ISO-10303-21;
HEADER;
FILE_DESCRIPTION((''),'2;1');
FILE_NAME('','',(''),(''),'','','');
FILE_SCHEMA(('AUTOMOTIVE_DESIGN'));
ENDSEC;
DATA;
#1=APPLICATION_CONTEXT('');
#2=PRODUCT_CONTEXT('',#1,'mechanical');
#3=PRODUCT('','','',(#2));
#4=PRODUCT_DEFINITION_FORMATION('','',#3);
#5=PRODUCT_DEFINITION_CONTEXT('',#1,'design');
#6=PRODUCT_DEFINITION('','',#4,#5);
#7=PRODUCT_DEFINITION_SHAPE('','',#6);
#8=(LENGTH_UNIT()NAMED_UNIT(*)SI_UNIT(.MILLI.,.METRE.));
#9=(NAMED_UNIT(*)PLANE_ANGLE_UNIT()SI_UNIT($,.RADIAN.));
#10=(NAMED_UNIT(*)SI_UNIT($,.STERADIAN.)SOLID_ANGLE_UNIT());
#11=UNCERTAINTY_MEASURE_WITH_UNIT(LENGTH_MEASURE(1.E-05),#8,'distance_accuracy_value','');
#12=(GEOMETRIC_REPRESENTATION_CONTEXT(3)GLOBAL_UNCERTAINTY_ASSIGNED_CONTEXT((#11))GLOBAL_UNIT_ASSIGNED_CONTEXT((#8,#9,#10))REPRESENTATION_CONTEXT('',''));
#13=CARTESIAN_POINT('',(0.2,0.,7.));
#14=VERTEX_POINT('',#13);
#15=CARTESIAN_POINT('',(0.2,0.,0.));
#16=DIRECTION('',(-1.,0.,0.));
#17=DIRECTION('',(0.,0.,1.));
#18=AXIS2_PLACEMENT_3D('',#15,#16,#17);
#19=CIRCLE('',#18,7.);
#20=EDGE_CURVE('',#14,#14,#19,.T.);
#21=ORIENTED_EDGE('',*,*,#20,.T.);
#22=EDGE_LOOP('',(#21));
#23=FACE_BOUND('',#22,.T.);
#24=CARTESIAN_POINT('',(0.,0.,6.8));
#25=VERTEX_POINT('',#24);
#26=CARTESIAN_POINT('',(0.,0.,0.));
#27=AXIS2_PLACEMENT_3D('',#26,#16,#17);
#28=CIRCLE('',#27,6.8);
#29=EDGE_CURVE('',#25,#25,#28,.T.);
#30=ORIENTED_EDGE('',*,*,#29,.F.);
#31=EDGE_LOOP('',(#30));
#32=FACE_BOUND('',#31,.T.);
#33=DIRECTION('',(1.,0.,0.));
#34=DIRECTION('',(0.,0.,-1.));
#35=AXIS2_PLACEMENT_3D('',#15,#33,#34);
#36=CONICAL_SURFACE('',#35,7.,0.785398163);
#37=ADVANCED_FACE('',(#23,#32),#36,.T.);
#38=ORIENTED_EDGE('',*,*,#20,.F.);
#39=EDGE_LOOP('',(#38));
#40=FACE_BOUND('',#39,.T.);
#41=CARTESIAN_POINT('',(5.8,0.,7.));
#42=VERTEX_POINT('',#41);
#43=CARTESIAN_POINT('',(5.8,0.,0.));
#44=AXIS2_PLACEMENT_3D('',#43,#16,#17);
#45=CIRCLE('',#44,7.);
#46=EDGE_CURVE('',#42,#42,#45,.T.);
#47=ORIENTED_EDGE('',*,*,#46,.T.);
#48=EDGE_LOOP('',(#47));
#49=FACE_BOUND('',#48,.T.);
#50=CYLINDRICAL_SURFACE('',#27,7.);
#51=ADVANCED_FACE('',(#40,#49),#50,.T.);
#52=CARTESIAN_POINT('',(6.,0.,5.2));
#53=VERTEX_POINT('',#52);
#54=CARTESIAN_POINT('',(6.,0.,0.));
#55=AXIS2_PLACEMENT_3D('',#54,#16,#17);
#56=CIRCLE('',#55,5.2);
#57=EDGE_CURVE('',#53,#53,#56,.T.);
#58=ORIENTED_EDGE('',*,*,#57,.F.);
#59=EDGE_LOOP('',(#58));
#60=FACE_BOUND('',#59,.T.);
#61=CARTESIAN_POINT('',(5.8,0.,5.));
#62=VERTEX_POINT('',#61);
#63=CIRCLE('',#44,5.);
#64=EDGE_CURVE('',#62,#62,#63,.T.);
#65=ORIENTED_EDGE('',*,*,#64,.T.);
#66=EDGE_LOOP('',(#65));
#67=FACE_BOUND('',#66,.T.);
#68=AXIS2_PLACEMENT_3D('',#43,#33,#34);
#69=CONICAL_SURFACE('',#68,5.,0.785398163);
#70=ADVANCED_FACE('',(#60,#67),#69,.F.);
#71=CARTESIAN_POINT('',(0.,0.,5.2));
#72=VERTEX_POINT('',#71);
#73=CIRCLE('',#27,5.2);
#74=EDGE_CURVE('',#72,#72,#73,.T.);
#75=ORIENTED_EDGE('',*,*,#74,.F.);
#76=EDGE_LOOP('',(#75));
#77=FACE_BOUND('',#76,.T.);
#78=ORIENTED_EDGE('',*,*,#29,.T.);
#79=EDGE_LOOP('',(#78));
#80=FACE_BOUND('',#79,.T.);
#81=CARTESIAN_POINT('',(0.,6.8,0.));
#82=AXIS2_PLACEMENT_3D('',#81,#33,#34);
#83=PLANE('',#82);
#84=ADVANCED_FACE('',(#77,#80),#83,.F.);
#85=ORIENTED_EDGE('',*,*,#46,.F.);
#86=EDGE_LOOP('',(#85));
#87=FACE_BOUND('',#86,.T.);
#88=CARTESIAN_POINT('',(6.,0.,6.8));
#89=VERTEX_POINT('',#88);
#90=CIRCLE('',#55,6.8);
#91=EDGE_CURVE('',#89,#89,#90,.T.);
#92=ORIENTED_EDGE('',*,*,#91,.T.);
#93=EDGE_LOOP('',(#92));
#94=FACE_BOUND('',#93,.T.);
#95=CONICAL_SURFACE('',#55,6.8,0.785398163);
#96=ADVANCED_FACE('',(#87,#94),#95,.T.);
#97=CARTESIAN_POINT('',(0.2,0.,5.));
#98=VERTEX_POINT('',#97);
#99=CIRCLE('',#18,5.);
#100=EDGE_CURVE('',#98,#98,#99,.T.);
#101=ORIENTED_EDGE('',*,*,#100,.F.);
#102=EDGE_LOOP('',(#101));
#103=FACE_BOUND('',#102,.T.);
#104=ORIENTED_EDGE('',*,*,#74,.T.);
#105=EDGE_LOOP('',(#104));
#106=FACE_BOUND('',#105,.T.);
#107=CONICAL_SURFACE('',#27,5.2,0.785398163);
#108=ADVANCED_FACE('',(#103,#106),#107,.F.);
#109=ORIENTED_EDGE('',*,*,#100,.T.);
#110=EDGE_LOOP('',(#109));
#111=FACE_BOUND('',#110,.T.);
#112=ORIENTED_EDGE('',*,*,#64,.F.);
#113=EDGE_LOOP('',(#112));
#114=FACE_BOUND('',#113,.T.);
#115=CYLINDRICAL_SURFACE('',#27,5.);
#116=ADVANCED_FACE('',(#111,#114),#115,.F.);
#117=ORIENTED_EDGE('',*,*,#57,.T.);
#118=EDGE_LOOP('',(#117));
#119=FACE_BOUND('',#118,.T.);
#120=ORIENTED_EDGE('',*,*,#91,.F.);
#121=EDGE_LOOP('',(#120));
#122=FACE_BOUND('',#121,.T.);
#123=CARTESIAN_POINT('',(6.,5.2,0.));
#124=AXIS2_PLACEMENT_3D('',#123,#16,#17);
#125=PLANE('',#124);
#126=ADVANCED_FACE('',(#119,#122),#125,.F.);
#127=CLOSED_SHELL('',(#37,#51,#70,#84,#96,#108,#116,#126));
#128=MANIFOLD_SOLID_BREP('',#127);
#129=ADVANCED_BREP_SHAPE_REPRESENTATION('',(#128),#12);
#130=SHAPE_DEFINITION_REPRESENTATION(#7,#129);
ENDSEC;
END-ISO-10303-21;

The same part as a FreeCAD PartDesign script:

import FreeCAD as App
import Part
import Sketcher

V = App.Vector


def add_polygon(sketch, points):
    """Adds a closed chain of lines whose ends are joined by coincident constraints."""
    first, n = sketch.GeometryCount, len(points)
    for a, b in zip(points, points[1:] + points[:1]):
        sketch.addGeometry(Part.LineSegment(App.Vector(*a, 0), App.Vector(*b, 0)), False)
    for i in range(n):
        sketch.addConstraint(Sketcher.Constraint("Coincident", first + i, 2, first + (i + 1) % n, 1))

doc = App.newDocument("Part")
params = doc.addObject("Spreadsheet::Sheet", "Params")
for row, (alias, value) in enumerate([
    ("sketch1_width", "5.6 mm"),
    ("sketch1_height", "1.6 mm"),
    ("revolution_angle", "360 deg"),
], start=1):
    params.set(f"A{row}", alias)
    params.set(f"B{row}", "=" + value)
    params.setAlias(f"B{row}", alias)

body = doc.addObject("PartDesign::Body", "Body")

# Sketch on XY plane
sketch1 = doc.addObject("Sketcher::SketchObject", "Sketch")
body.addObject(sketch1)
sketch1.AttachmentSupport = (doc.XY_Plane, [""])
sketch1.MapMode = "FlatFace"
add_polygon(sketch1, [(0.2, 5), (5.8, 5), (6, 5.2), (6, 6.8), (5.8, 7), (0.2, 7), (0, 6.8), (0, 5.2)])  # lines 0-7
sketch1.addConstraint(Sketcher.Constraint("Horizontal", 0))
sketch1.addConstraint(Sketcher.Constraint("Vertical", 2))
sketch1.addConstraint(Sketcher.Constraint("Horizontal", 4))
sketch1.addConstraint(Sketcher.Constraint("Vertical", 6))
sketch1.addConstraint(Sketcher.Constraint("PointOnObject", 5, 2, -2))
sketch1.addConstraint(Sketcher.Constraint("Perpendicular", 1, 3))
sketch1.addConstraint(Sketcher.Constraint("Perpendicular", 3, 5))
sketch1.addConstraint(Sketcher.Constraint("Perpendicular", 5, 7))
sketch1.addConstraint(Sketcher.Constraint("Horizontal", 2, 2, 5, 2))
sketch1.addConstraint(Sketcher.Constraint("Horizontal", 1, 2, 6, 2))
sketch1.addConstraint(Sketcher.Constraint("Vertical", 0, 2, 3, 2))
sketch1.addConstraint(Sketcher.Constraint("Vertical", 4, 2, 7, 2))
sketch1.addConstraint(Sketcher.Constraint("DistanceX", 0, 1, 0, 2, 5.6))
sketch1.addConstraint(Sketcher.Constraint("DistanceY", 2, 1, 2, 2, 1.6))
sketch1.addConstraint(Sketcher.Constraint("DistanceY", -1, 1, 0, 2, 5.0))
sketch1.addConstraint(Sketcher.Constraint("DistanceX", -1, 1, 1, 2, 6.0))
sketch1.setExpression("Constraints[20]", "Params.sketch1_width")
sketch1.setExpression("Constraints[21]", "Params.sketch1_height")
revolution = doc.addObject("PartDesign::Revolution", "Revolution")
body.addObject(revolution)
revolution.Profile = sketch1
revolution.ReferenceAxis = (sketch1, ["H_Axis"])
revolution.setExpression("Angle", "Params.revolution_angle")

doc.recompute()
